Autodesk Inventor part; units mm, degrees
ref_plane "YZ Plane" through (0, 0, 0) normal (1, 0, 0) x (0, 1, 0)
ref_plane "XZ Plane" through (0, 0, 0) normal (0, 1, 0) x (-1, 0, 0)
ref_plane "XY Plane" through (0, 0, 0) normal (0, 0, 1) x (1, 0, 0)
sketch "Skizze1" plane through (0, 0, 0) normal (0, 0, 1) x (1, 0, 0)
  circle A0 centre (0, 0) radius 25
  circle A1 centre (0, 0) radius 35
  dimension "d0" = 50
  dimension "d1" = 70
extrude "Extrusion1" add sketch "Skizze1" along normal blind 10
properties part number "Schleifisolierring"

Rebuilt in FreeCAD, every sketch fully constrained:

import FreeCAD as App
import Part
import Sketcher
Q = App.Units.Quantity

doc = App.newDocument("Part")
body = doc.addObject("PartDesign::Body", "Body")

sketch1 = body.newObject("Sketcher::SketchObject", "Sketch")
sketch1.AttachmentSupport = (doc.getObject("XY_Plane"), [""])
sketch1.MapMode = "FlatFace"
sketch1.addGeometry(Part.Circle(App.Vector(0, 0, 0), App.Vector(0, 0, 1), 35), False)
sketch1.addGeometry(Part.Circle(App.Vector(0, 0, 0), App.Vector(0, 0, 1), 25), False)
sketch1.addConstraint(Sketcher.Constraint("Coincident", 0, 3, -1, 1))
sketch1.addConstraint(Sketcher.Constraint("Coincident", 1, 3, -1, 1))
sketch1.addConstraint(Sketcher.Constraint("Diameter", 0, Q("70 mm")))
sketch1.addConstraint(Sketcher.Constraint("Diameter", 1, Q("50 mm")))
pad1 = body.newObject("PartDesign::Pad", "Pad")
pad1.Profile = sketch1
pad1.Length = 10

doc.recompute()
